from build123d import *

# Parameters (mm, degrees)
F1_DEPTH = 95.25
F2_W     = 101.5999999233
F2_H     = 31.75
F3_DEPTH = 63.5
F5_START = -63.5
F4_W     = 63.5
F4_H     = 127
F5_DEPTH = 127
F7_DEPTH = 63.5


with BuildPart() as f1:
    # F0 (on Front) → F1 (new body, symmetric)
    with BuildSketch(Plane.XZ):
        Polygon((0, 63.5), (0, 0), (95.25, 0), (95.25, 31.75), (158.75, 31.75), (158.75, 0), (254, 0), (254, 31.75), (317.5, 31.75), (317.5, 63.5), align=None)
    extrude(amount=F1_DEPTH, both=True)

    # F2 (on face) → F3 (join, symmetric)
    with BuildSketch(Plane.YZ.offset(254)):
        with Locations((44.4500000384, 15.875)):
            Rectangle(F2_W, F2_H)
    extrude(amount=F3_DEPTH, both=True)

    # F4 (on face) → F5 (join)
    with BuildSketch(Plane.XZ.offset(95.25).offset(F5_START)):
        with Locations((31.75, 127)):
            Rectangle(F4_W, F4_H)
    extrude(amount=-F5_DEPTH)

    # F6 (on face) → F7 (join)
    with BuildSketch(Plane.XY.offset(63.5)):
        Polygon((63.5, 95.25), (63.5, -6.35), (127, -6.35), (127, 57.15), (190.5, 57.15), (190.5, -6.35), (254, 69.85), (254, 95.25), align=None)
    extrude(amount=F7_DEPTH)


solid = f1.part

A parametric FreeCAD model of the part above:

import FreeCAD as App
import Part
import Sketcher
from FreeCAD import Vector
Q = App.Units.Quantity


def add_polygon(sketch, points):
    """Adds a closed chain of lines whose ends are joined by coincident constraints."""
    first, n = sketch.GeometryCount, len(points)
    for a, b in zip(points, points[1:] + points[:1]):
        sketch.addGeometry(Part.LineSegment(App.Vector(*a, 0), App.Vector(*b, 0)), False)
    for i in range(n):
        sketch.addConstraint(Sketcher.Constraint("Coincident", first + i, 2, first + (i + 1) % n, 1))

doc = App.newDocument("Part")
body = doc.addObject("PartDesign::Body", "Body")

sketch1 = body.newObject("Sketcher::SketchObject", "Sketch")
sketch1.AttachmentSupport = (doc.getObject("XZ_Plane"), [""])
sketch1.MapMode = "FlatFace"
add_polygon(sketch1, [(0, 64), (0, 0), (95, 0), (95, 32), (159, 32), (159, 0), (254, 0), (254, 32), (318, 32), (318, 64)])
sketch1.addConstraint(Sketcher.Constraint("Vertical", 0))
sketch1.addConstraint(Sketcher.Constraint("Horizontal", 1))
sketch1.addConstraint(Sketcher.Constraint("Vertical", 2))
sketch1.addConstraint(Sketcher.Constraint("Horizontal", 3))
sketch1.addConstraint(Sketcher.Constraint("Vertical", 4))
sketch1.addConstraint(Sketcher.Constraint("Horizontal", 5))
sketch1.addConstraint(Sketcher.Constraint("Vertical", 6))
sketch1.addConstraint(Sketcher.Constraint("Horizontal", 7))
sketch1.addConstraint(Sketcher.Constraint("Vertical", 8))
sketch1.addConstraint(Sketcher.Constraint("Horizontal", 9))
sketch1.addConstraint(Sketcher.Constraint("Coincident", 0, 2, -1, 1))
sketch1.addConstraint(Sketcher.Constraint("PointOnObject", 4, 2, -1))
sketch1.addConstraint(Sketcher.Constraint("Horizontal", 3, 2, 6, 2))
sketch1.addConstraint(Sketcher.Constraint("Equal", 1, 5))
sketch1.addConstraint(Sketcher.Constraint("Equal", 3, 7))
sketch1.addConstraint(Sketcher.Constraint("Equal", 7, 0))
sketch1.addConstraint(Sketcher.Constraint("Equal", 6, 8))
sketch1.addConstraint(Sketcher.Constraint("DistanceX", 3, 1, 3, 2, Q("2.5 in")))
sketch1.addConstraint(Sketcher.Constraint("DistanceX", 9, 2, 9, 1, Q("12.5 in")))
pad1 = body.newObject("PartDesign::Pad", "Pad")
pad1.Profile = sketch1
pad1.Length = Q("7.5 in")
pad1.Midplane = True

sketch2 = body.newObject("Sketcher::SketchObject", "Sketch001")
sketch2.AttachmentSupport = (doc.getObject("YZ_Plane"), [""])
sketch2.MapMode = "FlatFace"
sketch2.AttachmentOffset = App.Placement(Vector(0, 0, 10 * 25.4), App.Rotation())
add_polygon(sketch2, [(-6, 32), (-6, 0), (95, 0), (95, 32)])
sketch2.addConstraint(Sketcher.Constraint("Vertical", 0))
sketch2.addConstraint(Sketcher.Constraint("Horizontal", 1))
sketch2.addConstraint(Sketcher.Constraint("Vertical", 2))
sketch2.addConstraint(Sketcher.Constraint("Horizontal", 3))
sketch2.addConstraint(Sketcher.Constraint("PointOnObject", 0, 2, -1))
sketch2.addConstraint(Sketcher.Constraint("DistanceX", 1, 1, 1, 2, Q("4 in")))
sketch2.addConstraint(Sketcher.Constraint("DistanceY", 0, 2, 0, 1, Q("1.25 in")))
sketch2.addConstraint(Sketcher.Constraint("DistanceX", 0, 2, -1, 1, Q("0.25 in")))
pad2 = body.newObject("PartDesign::Pad", "Pad001")
pad2.Profile = sketch2
pad2.Length = Q("5 in")
pad2.Midplane = True

sketch3 = body.newObject("Sketcher::SketchObject", "Sketch002")
sketch3.AttachmentSupport = (doc.getObject("XZ_Plane"), [""])
sketch3.MapMode = "FlatFace"
sketch3.AttachmentOffset = App.Placement(Vector(0, 0, 1.25 * 25.4), App.Rotation())
add_polygon(sketch3, [(0, 190), (0, 64), (64, 64), (64, 190)])
sketch3.addConstraint(Sketcher.Constraint("Vertical", 0))
sketch3.addConstraint(Sketcher.Constraint("Horizontal", 1))
sketch3.addConstraint(Sketcher.Constraint("Vertical", 2))
sketch3.addConstraint(Sketcher.Constraint("Horizontal", 3))
sketch3.addConstraint(Sketcher.Constraint("PointOnObject", 0, 2, -2))
sketch3.addConstraint(Sketcher.Constraint("DistanceY", 0, 2, 0, 1, Q("5 in")))
sketch3.addConstraint(Sketcher.Constraint("DistanceX", 1, 1, 1, 2, Q("2.5 in")))
sketch3.addConstraint(Sketcher.Constraint("DistanceY", -1, 1, 0, 2, Q("2.5 in")))
pad3 = body.newObject("PartDesign::Pad", "Pad002")
pad3.Profile = sketch3
pad3.Length = Q("5 in")
pad3.Reversed = True

sketch4 = body.newObject("Sketcher::SketchObject", "Sketch003")
sketch4.AttachmentSupport = (doc.getObject("XY_Plane"), [""])
sketch4.MapMode = "FlatFace"
sketch4.AttachmentOffset = App.Placement(Vector(0, 0, 2.5 * 25.4), App.Rotation())
add_polygon(sketch4, [(64, 95), (64, -6), (127, -6), (127, 57), (190, 57), (190, -6), (254, 70), (254, 95)])
sketch4.addConstraint(Sketcher.Constraint("Vertical", 0))
sketch4.addConstraint(Sketcher.Constraint("Horizontal", 1))
sketch4.addConstraint(Sketcher.Constraint("Vertical", 2))
sketch4.addConstraint(Sketcher.Constraint("Horizontal", 3))
sketch4.addConstraint(Sketcher.Constraint("Vertical", 4))
sketch4.addConstraint(Sketcher.Constraint("Vertical", 6))
sketch4.addConstraint(Sketcher.Constraint("Horizontal", 7))
sketch4.addConstraint(Sketcher.Constraint("Horizontal", 1, 2, 4, 2))
sketch4.addConstraint(Sketcher.Constraint("Equal", 1, 3))
sketch4.addConstraint(Sketcher.Constraint("Equal", 3, 2))
sketch4.addConstraint(Sketcher.Constraint("DistanceY", 0, 2, 0, 1, Q("4 in")))
sketch4.addConstraint(Sketcher.Constraint("DistanceY", 6, 1, 6, 2, Q("1 in")))
sketch4.addConstraint(Sketcher.Constraint("DistanceX", 1, 1, 1, 2, Q("2.5 in")))
sketch4.addConstraint(Sketcher.Constraint("DistanceX", 7, 2, 7, 1, Q("7.5 in")))
sketch4.addConstraint(Sketcher.Constraint("DistanceX", -1, 1, 1, 2, Q("5 in")))
sketch4.addConstraint(Sketcher.Constraint("DistanceY", 0, 2, -1, 1, Q("0.25 in")))
pad4 = body.newObject("PartDesign::Pad", "Pad003")
pad4.Profile = sketch4
pad4.Length = Q("2.5 in")

doc.recompute()
